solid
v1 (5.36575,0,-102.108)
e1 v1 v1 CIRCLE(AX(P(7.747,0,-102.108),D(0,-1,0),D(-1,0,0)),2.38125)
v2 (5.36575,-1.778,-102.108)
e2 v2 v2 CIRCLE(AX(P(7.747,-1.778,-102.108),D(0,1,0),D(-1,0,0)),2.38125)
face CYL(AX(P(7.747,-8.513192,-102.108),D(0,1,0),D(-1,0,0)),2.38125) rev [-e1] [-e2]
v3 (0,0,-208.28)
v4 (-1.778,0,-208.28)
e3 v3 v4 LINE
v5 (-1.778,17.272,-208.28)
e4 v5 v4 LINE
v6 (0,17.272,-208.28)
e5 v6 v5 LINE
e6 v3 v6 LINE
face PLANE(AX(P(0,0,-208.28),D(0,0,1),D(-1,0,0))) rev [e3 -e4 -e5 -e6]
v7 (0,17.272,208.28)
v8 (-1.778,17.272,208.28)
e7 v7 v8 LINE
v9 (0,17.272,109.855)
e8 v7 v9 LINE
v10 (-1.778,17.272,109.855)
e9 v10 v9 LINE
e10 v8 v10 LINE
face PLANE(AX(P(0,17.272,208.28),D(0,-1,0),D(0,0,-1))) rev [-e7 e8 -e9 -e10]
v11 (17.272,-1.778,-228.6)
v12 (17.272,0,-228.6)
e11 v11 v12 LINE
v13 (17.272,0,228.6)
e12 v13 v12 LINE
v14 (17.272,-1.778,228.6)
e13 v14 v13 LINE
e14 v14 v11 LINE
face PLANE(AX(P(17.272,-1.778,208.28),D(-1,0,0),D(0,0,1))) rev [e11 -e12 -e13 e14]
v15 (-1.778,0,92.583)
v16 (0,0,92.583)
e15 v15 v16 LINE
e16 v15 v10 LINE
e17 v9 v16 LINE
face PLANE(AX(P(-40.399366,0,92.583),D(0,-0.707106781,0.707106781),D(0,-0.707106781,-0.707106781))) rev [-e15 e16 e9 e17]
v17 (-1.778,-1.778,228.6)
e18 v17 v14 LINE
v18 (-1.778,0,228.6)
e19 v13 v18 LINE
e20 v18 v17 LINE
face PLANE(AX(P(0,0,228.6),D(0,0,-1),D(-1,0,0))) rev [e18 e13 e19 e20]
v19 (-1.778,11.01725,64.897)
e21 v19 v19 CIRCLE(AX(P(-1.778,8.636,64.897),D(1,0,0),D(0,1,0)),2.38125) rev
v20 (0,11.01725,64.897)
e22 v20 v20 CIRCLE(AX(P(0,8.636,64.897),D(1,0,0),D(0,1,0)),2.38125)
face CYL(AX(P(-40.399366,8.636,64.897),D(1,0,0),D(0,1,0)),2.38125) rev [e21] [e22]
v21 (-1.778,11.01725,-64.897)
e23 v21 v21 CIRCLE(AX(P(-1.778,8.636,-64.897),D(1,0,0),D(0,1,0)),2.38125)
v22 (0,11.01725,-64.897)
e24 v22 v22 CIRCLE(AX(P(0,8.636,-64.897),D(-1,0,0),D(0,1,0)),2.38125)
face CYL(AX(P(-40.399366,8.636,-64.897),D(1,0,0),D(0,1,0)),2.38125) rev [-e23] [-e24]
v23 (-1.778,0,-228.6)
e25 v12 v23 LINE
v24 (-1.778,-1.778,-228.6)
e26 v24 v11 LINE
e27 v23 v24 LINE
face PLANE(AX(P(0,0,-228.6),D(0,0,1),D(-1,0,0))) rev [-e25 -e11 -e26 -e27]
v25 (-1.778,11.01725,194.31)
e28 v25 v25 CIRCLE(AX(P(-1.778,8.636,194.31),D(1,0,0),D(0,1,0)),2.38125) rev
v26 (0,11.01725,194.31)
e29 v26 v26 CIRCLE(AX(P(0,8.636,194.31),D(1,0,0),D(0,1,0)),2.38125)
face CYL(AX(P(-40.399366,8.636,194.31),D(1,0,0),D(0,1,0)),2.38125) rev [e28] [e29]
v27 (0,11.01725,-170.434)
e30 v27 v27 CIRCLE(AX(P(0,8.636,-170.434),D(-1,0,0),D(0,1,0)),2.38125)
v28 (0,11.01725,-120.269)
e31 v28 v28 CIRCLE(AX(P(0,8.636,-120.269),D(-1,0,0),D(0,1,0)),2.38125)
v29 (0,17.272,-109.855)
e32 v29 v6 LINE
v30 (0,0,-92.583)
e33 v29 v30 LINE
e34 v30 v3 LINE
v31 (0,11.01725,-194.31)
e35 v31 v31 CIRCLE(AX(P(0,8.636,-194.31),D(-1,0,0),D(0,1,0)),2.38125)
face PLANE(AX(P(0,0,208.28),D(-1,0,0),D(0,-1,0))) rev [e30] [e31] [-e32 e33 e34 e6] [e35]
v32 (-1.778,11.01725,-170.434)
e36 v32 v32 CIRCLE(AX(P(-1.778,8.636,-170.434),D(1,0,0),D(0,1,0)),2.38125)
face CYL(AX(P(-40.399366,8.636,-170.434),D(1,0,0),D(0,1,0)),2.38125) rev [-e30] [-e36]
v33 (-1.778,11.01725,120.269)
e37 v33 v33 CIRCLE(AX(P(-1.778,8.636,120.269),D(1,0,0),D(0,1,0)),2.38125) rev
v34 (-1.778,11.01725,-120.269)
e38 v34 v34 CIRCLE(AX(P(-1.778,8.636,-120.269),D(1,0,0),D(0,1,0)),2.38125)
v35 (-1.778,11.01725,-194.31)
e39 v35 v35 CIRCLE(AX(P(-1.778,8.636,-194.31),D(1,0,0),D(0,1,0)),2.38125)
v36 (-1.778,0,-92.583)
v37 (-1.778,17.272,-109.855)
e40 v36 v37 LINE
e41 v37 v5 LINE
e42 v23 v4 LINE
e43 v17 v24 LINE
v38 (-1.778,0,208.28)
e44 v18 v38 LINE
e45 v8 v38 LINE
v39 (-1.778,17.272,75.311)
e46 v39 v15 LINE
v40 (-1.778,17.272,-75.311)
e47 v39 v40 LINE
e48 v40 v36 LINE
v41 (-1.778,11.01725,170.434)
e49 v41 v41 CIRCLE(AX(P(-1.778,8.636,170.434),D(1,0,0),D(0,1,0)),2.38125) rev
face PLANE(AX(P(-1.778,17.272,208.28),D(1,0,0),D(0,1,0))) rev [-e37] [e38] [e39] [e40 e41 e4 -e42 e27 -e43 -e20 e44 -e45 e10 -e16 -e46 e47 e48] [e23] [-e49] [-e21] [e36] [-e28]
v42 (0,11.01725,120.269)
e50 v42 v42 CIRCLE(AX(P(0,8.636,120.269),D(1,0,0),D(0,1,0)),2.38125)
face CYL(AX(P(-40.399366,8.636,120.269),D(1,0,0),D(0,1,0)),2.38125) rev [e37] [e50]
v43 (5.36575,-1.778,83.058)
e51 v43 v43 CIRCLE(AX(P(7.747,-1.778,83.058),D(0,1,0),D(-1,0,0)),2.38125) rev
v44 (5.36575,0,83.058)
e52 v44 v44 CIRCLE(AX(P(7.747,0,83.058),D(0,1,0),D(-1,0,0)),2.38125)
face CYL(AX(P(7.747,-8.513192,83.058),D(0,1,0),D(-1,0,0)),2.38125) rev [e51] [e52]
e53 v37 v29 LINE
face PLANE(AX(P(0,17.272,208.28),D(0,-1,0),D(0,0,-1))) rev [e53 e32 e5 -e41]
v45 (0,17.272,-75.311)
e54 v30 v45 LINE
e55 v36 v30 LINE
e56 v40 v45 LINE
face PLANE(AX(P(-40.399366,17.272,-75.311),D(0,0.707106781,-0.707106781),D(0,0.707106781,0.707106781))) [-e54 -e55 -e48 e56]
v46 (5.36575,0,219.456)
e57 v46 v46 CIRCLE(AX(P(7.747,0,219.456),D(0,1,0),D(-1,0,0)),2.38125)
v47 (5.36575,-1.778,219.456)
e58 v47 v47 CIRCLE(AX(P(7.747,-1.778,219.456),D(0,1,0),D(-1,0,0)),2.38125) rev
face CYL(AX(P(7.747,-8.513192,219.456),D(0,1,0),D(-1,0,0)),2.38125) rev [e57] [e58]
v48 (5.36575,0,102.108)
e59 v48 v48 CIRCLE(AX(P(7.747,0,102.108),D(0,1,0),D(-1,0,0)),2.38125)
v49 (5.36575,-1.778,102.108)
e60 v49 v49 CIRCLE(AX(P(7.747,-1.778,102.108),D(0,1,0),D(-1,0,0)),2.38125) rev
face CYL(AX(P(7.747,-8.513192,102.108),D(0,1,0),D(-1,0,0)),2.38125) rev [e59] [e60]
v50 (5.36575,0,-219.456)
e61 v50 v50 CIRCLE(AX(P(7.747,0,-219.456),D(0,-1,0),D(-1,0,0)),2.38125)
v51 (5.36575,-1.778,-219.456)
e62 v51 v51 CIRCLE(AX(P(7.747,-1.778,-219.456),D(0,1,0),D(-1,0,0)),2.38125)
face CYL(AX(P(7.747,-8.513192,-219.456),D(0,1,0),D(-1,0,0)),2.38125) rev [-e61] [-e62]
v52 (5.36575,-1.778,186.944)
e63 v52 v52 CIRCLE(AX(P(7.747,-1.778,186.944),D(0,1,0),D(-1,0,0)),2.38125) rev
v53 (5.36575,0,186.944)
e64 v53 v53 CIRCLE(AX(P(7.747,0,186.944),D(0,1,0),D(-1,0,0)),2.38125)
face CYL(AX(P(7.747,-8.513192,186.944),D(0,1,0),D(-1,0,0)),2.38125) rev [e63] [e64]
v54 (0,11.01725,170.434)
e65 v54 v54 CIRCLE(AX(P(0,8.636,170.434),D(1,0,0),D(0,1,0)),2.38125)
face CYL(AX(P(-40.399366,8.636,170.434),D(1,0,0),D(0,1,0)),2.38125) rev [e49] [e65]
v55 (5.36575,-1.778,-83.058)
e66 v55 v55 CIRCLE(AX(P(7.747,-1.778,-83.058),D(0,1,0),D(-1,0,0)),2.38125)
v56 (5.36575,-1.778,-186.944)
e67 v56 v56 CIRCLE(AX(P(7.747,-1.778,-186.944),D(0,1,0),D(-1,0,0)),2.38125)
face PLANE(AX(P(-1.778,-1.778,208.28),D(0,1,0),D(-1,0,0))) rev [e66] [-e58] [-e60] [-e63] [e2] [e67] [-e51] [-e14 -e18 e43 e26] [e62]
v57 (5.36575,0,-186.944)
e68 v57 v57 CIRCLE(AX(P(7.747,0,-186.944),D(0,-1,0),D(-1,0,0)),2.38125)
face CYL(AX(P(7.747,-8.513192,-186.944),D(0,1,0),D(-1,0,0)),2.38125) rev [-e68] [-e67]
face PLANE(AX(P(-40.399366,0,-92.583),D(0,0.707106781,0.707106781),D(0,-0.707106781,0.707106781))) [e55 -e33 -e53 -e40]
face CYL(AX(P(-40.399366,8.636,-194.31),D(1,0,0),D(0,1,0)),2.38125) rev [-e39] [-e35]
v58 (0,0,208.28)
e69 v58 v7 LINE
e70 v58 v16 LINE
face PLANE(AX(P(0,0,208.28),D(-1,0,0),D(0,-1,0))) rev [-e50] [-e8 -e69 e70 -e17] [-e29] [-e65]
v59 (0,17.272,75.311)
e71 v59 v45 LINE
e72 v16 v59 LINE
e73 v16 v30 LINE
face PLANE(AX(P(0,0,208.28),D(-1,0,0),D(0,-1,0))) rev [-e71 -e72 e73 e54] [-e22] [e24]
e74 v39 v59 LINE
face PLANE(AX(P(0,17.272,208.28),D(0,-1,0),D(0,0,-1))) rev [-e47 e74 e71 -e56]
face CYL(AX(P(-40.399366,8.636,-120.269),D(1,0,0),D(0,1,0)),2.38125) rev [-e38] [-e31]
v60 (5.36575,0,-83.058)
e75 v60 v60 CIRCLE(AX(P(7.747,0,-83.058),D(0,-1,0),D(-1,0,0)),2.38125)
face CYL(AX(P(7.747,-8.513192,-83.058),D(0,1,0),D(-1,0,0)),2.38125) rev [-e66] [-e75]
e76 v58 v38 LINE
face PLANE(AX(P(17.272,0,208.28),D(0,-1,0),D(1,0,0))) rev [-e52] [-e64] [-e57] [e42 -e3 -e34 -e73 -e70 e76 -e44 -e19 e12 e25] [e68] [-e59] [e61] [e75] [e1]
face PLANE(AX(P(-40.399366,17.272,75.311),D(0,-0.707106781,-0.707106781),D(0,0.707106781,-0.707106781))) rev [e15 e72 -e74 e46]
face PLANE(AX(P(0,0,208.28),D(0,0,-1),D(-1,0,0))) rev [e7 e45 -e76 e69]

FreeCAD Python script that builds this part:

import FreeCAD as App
import Part
import Sketcher
from FreeCAD import Vector
Q = App.Units.Quantity


def add_polygon(sketch, points):
    """Adds a closed chain of lines whose ends are joined by coincident constraints."""
    first, n = sketch.GeometryCount, len(points)
    for a, b in zip(points, points[1:] + points[:1]):
        sketch.addGeometry(Part.LineSegment(App.Vector(*a, 0), App.Vector(*b, 0)), False)
    for i in range(n):
        sketch.addConstraint(Sketcher.Constraint("Coincident", first + i, 2, first + (i + 1) % n, 1))

doc = App.newDocument("Part")
params = doc.addObject("Spreadsheet::Sheet", "Params")
for row, (alias, value) in enumerate([
    ("sketch1_width", "0.07 in"),
    ("sketch1_width2", "0.75 in"),
    ("pad1_length", "8.2 in"),
    ("sketch2_diameter", "0.1875 in"),
    ("sketch2_height", "1.36 in"),
    ("pocket1_length", "0.07 in"),
    ("sketch3_width", "0.75 in"),
    ("sketch3_height", "0.07 in"),
    ("pad2_length", "0.8 in"),
    ("sketch4_diameter", "0.1875 in"),
    ("pocket2_length", "0.07 in"),
], start=1):
    params.set(f"A{row}", alias)
    params.set(f"B{row}", "=" + value)
    params.setAlias(f"B{row}", alias)

body = doc.addObject("PartDesign::Body", "Body")

sketch1 = body.newObject("Sketcher::SketchObject", "Sketch")
sketch1.AttachmentSupport = (doc.getObject("XY_Plane"), [""])
sketch1.MapMode = "FlatFace"
add_polygon(sketch1, [(0, 0), (0, 17.3), (-1.8, 17.3), (-1.8, -1.8), (17.3, -1.8), (17.3, 0)])
sketch1.addConstraint(Sketcher.Constraint("Vertical", 0))
sketch1.addConstraint(Sketcher.Constraint("Horizontal", 1))
sketch1.addConstraint(Sketcher.Constraint("Vertical", 2))
sketch1.addConstraint(Sketcher.Constraint("Horizontal", 3))
sketch1.addConstraint(Sketcher.Constraint("Vertical", 4))
sketch1.addConstraint(Sketcher.Constraint("Horizontal", 5))
sketch1.addConstraint(Sketcher.Constraint("Coincident", 5, 2, -1, 1))
sketch1.addConstraint(Sketcher.Constraint("Equal", 5, 0))
sketch1.addConstraint(Sketcher.Constraint("Equal", 3, 2))
sketch1.addConstraint(Sketcher.Constraint("DistanceX", 1, 2, 1, 1, Q("0.07 in")))
sketch1.addConstraint(Sketcher.Constraint("DistanceX", 3, 1, 3, 2, Q("0.75 in")))
sketch1.setExpression("Constraints[15]", "Params.sketch1_width")
sketch1.setExpression("Constraints[16]", "Params.sketch1_width2")
pad1 = body.newObject("PartDesign::Pad", "Pad")
pad1.Profile = sketch1
pad1.setExpression("Length", "Params.pad1_length")

sketch2 = body.newObject("Sketcher::SketchObject", "Sketch001")
sketch2.AttachmentSupport = (doc.getObject("YZ_Plane"), [""])
sketch2.MapMode = "FlatFace"
sketch2.addGeometry(Part.Circle(Vector(8.6, 194.3, 0), Vector(0, 0, 1), 2.4), False)
sketch2.addGeometry(Part.Circle(Vector(8.6, 170.4, 0), Vector(0, 0, 1), 2.4), False)
sketch2.addGeometry(Part.Circle(Vector(8.6, 120.3, 0), Vector(0, 0, 1), 2.4), False)
sketch2.addGeometry(Part.Circle(Vector(8.6, 64.9, 0), Vector(0, 0, 1), 2.4), False)
add_polygon(sketch2, [(17.3, 109.9), (0, 92.6), (17.3, 75.3)])
sketch2.addConstraint(Sketcher.Constraint("Vertical", 6))
sketch2.addConstraint(Sketcher.Constraint("Equal", 0, 1))
sketch2.addConstraint(Sketcher.Constraint("Equal", 1, 2))
sketch2.addConstraint(Sketcher.Constraint("Equal", 2, 3))
sketch2.addConstraint(Sketcher.Constraint("PointOnObject", 4, 2, -2))
sketch2.addConstraint(Sketcher.Constraint("Perpendicular", 4, 5))
sketch2.addConstraint(Sketcher.Constraint("Vertical", 0, 3, 1, 3))
sketch2.addConstraint(Sketcher.Constraint("Vertical", 1, 3, 2, 3))
sketch2.addConstraint(Sketcher.Constraint("Vertical", 2, 3, 3, 3))
sketch2.addConstraint(Sketcher.Constraint("Equal", 4, 5))
sketch2.addConstraint(Sketcher.Constraint("Diameter", 0, Q("0.1875 in")))
sketch2.addConstraint(Sketcher.Constraint("DistanceY", 6, 1, 6, 2, Q("1.36 in")))
sketch2.addConstraint(Sketcher.Constraint("DistanceX", -1, 1, 0, 3, Q("0.34 in")))
sketch2.addConstraint(Sketcher.Constraint("DistanceY", -1, 1, 0, 3, Q("7.65 in")))
sketch2.addConstraint(Sketcher.Constraint("DistanceY", -1, 1, 1, 3, Q("6.71 in")))
sketch2.addConstraint(Sketcher.Constraint("DistanceY", 3, 3, 2, 3, Q("2.18 in")))
sketch2.addConstraint(Sketcher.Constraint("DistanceY", 3, 3, 4, 2, Q("1.09 in")))
sketch2.addConstraint(Sketcher.Constraint("DistanceY", -1, 1, 2, 3, Q("4.735 in")))
sketch2.setExpression("Constraints[13]", "Params.sketch2_diameter")
sketch2.setExpression("Constraints[14]", "Params.sketch2_height")
pocket1 = body.newObject("PartDesign::Pocket", "Pocket")
pocket1.Profile = sketch2
pocket1.setExpression("Length", "Params.pocket1_length")

sketch3 = body.newObject("Sketcher::SketchObject", "Sketch002")
sketch3.AttachmentSupport = (doc.getObject("XY_Plane"), [""])
sketch3.MapMode = "FlatFace"
sketch3.AttachmentOffset = App.Placement(Vector(0, 0, 8.2 * 25.4), App.Rotation())
add_polygon(sketch3, [(-1.8, 0), (-1.8, -1.8), (17.3, -1.8), (17.3, 0)])
sketch3.addConstraint(Sketcher.Constraint("Vertical", 0))
sketch3.addConstraint(Sketcher.Constraint("Horizontal", 1))
sketch3.addConstraint(Sketcher.Constraint("Vertical", 2))
sketch3.addConstraint(Sketcher.Constraint("Horizontal", 3))
sketch3.addConstraint(Sketcher.Constraint("PointOnObject", 2, 2, -1))
sketch3.addConstraint(Sketcher.Constraint("DistanceX", 1, 1, 1, 2, Q("0.75 in")))
sketch3.addConstraint(Sketcher.Constraint("DistanceY", 0, 2, 0, 1, Q("0.07 in")))
sketch3.addConstraint(Sketcher.Constraint("DistanceX", 0, 2, -1, 1, Q("0.07 in")))
sketch3.setExpression("Constraints[9]", "Params.sketch3_width")
sketch3.setExpression("Constraints[10]", "Params.sketch3_height")
pad2 = body.newObject("PartDesign::Pad", "Pad001")
pad2.Profile = sketch3
pad2.setExpression("Length", "Params.pad2_length")

sketch4 = body.newObject("Sketcher::SketchObject", "Sketch003")
sketch4.AttachmentSupport = (doc.getObject("XZ_Plane"), [""])
sketch4.MapMode = "FlatFace"
sketch4.addGeometry(Part.Circle(Vector(7.7, 219.5, 0), Vector(0, 0, 1), 2.4), False)
sketch4.addGeometry(Part.Circle(Vector(7.7, 83.1, 0), Vector(0, 0, 1), 2.4), False)
sketch4.addGeometry(Part.Circle(Vector(7.7, 102.1, 0), Vector(0, 0, 1), 2.4), False)
sketch4.addGeometry(Part.Circle(Vector(7.7, 186.9, 0), Vector(0, 0, 1), 2.4), False)
sketch4.addConstraint(Sketcher.Constraint("Equal", 0, 1))
sketch4.addConstraint(Sketcher.Constraint("Equal", 1, 2))
sketch4.addConstraint(Sketcher.Constraint("Equal", 2, 3))
sketch4.addConstraint(Sketcher.Constraint("Vertical", 0, 3, 1, 3))
sketch4.addConstraint(Sketcher.Constraint("Vertical", 1, 3, 2, 3))
sketch4.addConstraint(Sketcher.Constraint("Vertical", 2, 3, 3, 3))
sketch4.addConstraint(Sketcher.Constraint("Diameter", 0, Q("0.1875 in")))
sketch4.addConstraint(Sketcher.Constraint("DistanceY", -1, 1, 0, 3, Q("8.64 in")))
sketch4.addConstraint(Sketcher.Constraint("DistanceY", -1, 1, 1, 3, Q("3.27 in")))
sketch4.addConstraint(Sketcher.Constraint("DistanceY", -1, 1, 2, 3, Q("4.02 in")))
sketch4.addConstraint(Sketcher.Constraint("DistanceY", -1, 1, 3, 3, Q("7.36 in")))
sketch4.addConstraint(Sketcher.Constraint("DistanceX", -1, 1, 0, 3, Q("0.305 in")))
sketch4.setExpression("Constraints[6]", "Params.sketch4_diameter")
pocket2 = body.newObject("PartDesign::Pocket", "Pocket001")
pocket2.Profile = sketch4
pocket2.setExpression("Length", "Params.pocket2_length")
pocket2.Reversed = True
doc.recompute()

mirrored = body.newObject("PartDesign::Mirrored", "Mirrored")
mirrored.Originals = [pad1, pocket1, pad2, pocket2]
mirrored.MirrorPlane = (doc.getObject("XY_Plane"), [""])
body.Tip = mirrored

doc.recompute()
